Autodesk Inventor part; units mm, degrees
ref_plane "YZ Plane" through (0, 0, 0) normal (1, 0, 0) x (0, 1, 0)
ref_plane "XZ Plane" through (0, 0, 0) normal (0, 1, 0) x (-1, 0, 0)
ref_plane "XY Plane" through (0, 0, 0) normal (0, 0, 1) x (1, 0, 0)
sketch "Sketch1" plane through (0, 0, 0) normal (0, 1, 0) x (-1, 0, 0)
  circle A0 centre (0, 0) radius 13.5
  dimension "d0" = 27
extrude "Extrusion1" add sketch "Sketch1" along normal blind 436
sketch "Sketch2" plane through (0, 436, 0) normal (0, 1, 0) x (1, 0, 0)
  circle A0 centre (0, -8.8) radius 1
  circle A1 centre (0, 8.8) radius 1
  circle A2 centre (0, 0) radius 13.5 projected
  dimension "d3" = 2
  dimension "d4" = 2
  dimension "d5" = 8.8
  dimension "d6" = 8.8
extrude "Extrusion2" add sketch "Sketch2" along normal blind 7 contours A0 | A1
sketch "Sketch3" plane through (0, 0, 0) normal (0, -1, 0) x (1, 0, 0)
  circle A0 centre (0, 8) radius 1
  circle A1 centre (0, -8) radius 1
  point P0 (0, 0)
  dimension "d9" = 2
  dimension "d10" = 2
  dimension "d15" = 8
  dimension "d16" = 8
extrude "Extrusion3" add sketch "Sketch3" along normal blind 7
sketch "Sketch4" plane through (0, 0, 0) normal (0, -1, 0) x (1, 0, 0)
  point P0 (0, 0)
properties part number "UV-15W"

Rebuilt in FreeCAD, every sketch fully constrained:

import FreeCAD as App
import Part
import Sketcher

V = App.Vector
Q = App.Units.Quantity

doc = App.newDocument("Part")
body = doc.addObject("PartDesign::Body", "Body")

# Sketch on XZ plane
sketch1 = doc.addObject("Sketcher::SketchObject", "Sketch")
body.addObject(sketch1)
sketch1.AttachmentSupport = (doc.XZ_Plane, [""])
sketch1.MapMode = "FlatFace"
sketch1.addGeometry(Part.Circle(V(0, 0, 0), V(0, 0, 1), 13.5), False)
sketch1.addConstraint([
    Sketcher.Constraint("Coincident", 0, 3, -1, 1),
    Sketcher.Constraint("Diameter", 0, Q("27 mm")),
])
pad1 = doc.addObject("PartDesign::Pad", "Pad")
body.addObject(pad1)
pad1.Profile = sketch1
pad1.Length = 436
pad1.Reversed = True

# Sketch on XZ plane
sketch2 = doc.addObject("Sketcher::SketchObject", "Sketch001")
body.addObject(sketch2)
sketch2.AttachmentSupport = (doc.XZ_Plane, [""])
sketch2.MapMode = "FlatFace"
sketch2.AttachmentOffset = App.Placement(V(0, 0, -436), App.Rotation())
sketch2.addGeometry([
    Part.Circle(V(0, 8.8, 0), V(0, 0, 1), 1),
    Part.Circle(V(0, -8.8, 0), V(0, 0, 1), 1),
], False)
sketch2.addConstraint([
    Sketcher.Constraint("Equal", 0, 1),
    Sketcher.Constraint("Symmetric", 0, 3, 1, 3, -1, 1),
    Sketcher.Constraint("PointOnObject", 0, 3, -2),
    Sketcher.Constraint("Diameter", 0, Q("2 mm")),
    Sketcher.Constraint("DistanceY", -1, 1, 0, 3, Q("8.8 mm")),
])
pad2 = doc.addObject("PartDesign::Pad", "Pad001")
body.addObject(pad2)
pad2.Profile = sketch2
pad2.Length = 7
pad2.Reversed = True

# Sketch on XZ plane
sketch3 = doc.addObject("Sketcher::SketchObject", "Sketch002")
body.addObject(sketch3)
sketch3.AttachmentSupport = (doc.XZ_Plane, [""])
sketch3.MapMode = "FlatFace"
sketch3.addGeometry([
    Part.Circle(V(0, 8, 0), V(0, 0, 1), 1),
    Part.Circle(V(0, -8, 0), V(0, 0, 1), 1),
], False)
sketch3.addConstraint([
    Sketcher.Constraint("Equal", 0, 1),
    Sketcher.Constraint("Symmetric", 0, 3, 1, 3, -1, 1),
    Sketcher.Constraint("PointOnObject", 0, 3, -2),
    Sketcher.Constraint("Diameter", 0, Q("2 mm")),
    Sketcher.Constraint("DistanceY", -1, 1, 0, 3, Q("8 mm")),
])
pad3 = doc.addObject("PartDesign::Pad", "Pad002")
body.addObject(pad3)
pad3.Profile = sketch3
pad3.Length = 7

doc.recompute()
